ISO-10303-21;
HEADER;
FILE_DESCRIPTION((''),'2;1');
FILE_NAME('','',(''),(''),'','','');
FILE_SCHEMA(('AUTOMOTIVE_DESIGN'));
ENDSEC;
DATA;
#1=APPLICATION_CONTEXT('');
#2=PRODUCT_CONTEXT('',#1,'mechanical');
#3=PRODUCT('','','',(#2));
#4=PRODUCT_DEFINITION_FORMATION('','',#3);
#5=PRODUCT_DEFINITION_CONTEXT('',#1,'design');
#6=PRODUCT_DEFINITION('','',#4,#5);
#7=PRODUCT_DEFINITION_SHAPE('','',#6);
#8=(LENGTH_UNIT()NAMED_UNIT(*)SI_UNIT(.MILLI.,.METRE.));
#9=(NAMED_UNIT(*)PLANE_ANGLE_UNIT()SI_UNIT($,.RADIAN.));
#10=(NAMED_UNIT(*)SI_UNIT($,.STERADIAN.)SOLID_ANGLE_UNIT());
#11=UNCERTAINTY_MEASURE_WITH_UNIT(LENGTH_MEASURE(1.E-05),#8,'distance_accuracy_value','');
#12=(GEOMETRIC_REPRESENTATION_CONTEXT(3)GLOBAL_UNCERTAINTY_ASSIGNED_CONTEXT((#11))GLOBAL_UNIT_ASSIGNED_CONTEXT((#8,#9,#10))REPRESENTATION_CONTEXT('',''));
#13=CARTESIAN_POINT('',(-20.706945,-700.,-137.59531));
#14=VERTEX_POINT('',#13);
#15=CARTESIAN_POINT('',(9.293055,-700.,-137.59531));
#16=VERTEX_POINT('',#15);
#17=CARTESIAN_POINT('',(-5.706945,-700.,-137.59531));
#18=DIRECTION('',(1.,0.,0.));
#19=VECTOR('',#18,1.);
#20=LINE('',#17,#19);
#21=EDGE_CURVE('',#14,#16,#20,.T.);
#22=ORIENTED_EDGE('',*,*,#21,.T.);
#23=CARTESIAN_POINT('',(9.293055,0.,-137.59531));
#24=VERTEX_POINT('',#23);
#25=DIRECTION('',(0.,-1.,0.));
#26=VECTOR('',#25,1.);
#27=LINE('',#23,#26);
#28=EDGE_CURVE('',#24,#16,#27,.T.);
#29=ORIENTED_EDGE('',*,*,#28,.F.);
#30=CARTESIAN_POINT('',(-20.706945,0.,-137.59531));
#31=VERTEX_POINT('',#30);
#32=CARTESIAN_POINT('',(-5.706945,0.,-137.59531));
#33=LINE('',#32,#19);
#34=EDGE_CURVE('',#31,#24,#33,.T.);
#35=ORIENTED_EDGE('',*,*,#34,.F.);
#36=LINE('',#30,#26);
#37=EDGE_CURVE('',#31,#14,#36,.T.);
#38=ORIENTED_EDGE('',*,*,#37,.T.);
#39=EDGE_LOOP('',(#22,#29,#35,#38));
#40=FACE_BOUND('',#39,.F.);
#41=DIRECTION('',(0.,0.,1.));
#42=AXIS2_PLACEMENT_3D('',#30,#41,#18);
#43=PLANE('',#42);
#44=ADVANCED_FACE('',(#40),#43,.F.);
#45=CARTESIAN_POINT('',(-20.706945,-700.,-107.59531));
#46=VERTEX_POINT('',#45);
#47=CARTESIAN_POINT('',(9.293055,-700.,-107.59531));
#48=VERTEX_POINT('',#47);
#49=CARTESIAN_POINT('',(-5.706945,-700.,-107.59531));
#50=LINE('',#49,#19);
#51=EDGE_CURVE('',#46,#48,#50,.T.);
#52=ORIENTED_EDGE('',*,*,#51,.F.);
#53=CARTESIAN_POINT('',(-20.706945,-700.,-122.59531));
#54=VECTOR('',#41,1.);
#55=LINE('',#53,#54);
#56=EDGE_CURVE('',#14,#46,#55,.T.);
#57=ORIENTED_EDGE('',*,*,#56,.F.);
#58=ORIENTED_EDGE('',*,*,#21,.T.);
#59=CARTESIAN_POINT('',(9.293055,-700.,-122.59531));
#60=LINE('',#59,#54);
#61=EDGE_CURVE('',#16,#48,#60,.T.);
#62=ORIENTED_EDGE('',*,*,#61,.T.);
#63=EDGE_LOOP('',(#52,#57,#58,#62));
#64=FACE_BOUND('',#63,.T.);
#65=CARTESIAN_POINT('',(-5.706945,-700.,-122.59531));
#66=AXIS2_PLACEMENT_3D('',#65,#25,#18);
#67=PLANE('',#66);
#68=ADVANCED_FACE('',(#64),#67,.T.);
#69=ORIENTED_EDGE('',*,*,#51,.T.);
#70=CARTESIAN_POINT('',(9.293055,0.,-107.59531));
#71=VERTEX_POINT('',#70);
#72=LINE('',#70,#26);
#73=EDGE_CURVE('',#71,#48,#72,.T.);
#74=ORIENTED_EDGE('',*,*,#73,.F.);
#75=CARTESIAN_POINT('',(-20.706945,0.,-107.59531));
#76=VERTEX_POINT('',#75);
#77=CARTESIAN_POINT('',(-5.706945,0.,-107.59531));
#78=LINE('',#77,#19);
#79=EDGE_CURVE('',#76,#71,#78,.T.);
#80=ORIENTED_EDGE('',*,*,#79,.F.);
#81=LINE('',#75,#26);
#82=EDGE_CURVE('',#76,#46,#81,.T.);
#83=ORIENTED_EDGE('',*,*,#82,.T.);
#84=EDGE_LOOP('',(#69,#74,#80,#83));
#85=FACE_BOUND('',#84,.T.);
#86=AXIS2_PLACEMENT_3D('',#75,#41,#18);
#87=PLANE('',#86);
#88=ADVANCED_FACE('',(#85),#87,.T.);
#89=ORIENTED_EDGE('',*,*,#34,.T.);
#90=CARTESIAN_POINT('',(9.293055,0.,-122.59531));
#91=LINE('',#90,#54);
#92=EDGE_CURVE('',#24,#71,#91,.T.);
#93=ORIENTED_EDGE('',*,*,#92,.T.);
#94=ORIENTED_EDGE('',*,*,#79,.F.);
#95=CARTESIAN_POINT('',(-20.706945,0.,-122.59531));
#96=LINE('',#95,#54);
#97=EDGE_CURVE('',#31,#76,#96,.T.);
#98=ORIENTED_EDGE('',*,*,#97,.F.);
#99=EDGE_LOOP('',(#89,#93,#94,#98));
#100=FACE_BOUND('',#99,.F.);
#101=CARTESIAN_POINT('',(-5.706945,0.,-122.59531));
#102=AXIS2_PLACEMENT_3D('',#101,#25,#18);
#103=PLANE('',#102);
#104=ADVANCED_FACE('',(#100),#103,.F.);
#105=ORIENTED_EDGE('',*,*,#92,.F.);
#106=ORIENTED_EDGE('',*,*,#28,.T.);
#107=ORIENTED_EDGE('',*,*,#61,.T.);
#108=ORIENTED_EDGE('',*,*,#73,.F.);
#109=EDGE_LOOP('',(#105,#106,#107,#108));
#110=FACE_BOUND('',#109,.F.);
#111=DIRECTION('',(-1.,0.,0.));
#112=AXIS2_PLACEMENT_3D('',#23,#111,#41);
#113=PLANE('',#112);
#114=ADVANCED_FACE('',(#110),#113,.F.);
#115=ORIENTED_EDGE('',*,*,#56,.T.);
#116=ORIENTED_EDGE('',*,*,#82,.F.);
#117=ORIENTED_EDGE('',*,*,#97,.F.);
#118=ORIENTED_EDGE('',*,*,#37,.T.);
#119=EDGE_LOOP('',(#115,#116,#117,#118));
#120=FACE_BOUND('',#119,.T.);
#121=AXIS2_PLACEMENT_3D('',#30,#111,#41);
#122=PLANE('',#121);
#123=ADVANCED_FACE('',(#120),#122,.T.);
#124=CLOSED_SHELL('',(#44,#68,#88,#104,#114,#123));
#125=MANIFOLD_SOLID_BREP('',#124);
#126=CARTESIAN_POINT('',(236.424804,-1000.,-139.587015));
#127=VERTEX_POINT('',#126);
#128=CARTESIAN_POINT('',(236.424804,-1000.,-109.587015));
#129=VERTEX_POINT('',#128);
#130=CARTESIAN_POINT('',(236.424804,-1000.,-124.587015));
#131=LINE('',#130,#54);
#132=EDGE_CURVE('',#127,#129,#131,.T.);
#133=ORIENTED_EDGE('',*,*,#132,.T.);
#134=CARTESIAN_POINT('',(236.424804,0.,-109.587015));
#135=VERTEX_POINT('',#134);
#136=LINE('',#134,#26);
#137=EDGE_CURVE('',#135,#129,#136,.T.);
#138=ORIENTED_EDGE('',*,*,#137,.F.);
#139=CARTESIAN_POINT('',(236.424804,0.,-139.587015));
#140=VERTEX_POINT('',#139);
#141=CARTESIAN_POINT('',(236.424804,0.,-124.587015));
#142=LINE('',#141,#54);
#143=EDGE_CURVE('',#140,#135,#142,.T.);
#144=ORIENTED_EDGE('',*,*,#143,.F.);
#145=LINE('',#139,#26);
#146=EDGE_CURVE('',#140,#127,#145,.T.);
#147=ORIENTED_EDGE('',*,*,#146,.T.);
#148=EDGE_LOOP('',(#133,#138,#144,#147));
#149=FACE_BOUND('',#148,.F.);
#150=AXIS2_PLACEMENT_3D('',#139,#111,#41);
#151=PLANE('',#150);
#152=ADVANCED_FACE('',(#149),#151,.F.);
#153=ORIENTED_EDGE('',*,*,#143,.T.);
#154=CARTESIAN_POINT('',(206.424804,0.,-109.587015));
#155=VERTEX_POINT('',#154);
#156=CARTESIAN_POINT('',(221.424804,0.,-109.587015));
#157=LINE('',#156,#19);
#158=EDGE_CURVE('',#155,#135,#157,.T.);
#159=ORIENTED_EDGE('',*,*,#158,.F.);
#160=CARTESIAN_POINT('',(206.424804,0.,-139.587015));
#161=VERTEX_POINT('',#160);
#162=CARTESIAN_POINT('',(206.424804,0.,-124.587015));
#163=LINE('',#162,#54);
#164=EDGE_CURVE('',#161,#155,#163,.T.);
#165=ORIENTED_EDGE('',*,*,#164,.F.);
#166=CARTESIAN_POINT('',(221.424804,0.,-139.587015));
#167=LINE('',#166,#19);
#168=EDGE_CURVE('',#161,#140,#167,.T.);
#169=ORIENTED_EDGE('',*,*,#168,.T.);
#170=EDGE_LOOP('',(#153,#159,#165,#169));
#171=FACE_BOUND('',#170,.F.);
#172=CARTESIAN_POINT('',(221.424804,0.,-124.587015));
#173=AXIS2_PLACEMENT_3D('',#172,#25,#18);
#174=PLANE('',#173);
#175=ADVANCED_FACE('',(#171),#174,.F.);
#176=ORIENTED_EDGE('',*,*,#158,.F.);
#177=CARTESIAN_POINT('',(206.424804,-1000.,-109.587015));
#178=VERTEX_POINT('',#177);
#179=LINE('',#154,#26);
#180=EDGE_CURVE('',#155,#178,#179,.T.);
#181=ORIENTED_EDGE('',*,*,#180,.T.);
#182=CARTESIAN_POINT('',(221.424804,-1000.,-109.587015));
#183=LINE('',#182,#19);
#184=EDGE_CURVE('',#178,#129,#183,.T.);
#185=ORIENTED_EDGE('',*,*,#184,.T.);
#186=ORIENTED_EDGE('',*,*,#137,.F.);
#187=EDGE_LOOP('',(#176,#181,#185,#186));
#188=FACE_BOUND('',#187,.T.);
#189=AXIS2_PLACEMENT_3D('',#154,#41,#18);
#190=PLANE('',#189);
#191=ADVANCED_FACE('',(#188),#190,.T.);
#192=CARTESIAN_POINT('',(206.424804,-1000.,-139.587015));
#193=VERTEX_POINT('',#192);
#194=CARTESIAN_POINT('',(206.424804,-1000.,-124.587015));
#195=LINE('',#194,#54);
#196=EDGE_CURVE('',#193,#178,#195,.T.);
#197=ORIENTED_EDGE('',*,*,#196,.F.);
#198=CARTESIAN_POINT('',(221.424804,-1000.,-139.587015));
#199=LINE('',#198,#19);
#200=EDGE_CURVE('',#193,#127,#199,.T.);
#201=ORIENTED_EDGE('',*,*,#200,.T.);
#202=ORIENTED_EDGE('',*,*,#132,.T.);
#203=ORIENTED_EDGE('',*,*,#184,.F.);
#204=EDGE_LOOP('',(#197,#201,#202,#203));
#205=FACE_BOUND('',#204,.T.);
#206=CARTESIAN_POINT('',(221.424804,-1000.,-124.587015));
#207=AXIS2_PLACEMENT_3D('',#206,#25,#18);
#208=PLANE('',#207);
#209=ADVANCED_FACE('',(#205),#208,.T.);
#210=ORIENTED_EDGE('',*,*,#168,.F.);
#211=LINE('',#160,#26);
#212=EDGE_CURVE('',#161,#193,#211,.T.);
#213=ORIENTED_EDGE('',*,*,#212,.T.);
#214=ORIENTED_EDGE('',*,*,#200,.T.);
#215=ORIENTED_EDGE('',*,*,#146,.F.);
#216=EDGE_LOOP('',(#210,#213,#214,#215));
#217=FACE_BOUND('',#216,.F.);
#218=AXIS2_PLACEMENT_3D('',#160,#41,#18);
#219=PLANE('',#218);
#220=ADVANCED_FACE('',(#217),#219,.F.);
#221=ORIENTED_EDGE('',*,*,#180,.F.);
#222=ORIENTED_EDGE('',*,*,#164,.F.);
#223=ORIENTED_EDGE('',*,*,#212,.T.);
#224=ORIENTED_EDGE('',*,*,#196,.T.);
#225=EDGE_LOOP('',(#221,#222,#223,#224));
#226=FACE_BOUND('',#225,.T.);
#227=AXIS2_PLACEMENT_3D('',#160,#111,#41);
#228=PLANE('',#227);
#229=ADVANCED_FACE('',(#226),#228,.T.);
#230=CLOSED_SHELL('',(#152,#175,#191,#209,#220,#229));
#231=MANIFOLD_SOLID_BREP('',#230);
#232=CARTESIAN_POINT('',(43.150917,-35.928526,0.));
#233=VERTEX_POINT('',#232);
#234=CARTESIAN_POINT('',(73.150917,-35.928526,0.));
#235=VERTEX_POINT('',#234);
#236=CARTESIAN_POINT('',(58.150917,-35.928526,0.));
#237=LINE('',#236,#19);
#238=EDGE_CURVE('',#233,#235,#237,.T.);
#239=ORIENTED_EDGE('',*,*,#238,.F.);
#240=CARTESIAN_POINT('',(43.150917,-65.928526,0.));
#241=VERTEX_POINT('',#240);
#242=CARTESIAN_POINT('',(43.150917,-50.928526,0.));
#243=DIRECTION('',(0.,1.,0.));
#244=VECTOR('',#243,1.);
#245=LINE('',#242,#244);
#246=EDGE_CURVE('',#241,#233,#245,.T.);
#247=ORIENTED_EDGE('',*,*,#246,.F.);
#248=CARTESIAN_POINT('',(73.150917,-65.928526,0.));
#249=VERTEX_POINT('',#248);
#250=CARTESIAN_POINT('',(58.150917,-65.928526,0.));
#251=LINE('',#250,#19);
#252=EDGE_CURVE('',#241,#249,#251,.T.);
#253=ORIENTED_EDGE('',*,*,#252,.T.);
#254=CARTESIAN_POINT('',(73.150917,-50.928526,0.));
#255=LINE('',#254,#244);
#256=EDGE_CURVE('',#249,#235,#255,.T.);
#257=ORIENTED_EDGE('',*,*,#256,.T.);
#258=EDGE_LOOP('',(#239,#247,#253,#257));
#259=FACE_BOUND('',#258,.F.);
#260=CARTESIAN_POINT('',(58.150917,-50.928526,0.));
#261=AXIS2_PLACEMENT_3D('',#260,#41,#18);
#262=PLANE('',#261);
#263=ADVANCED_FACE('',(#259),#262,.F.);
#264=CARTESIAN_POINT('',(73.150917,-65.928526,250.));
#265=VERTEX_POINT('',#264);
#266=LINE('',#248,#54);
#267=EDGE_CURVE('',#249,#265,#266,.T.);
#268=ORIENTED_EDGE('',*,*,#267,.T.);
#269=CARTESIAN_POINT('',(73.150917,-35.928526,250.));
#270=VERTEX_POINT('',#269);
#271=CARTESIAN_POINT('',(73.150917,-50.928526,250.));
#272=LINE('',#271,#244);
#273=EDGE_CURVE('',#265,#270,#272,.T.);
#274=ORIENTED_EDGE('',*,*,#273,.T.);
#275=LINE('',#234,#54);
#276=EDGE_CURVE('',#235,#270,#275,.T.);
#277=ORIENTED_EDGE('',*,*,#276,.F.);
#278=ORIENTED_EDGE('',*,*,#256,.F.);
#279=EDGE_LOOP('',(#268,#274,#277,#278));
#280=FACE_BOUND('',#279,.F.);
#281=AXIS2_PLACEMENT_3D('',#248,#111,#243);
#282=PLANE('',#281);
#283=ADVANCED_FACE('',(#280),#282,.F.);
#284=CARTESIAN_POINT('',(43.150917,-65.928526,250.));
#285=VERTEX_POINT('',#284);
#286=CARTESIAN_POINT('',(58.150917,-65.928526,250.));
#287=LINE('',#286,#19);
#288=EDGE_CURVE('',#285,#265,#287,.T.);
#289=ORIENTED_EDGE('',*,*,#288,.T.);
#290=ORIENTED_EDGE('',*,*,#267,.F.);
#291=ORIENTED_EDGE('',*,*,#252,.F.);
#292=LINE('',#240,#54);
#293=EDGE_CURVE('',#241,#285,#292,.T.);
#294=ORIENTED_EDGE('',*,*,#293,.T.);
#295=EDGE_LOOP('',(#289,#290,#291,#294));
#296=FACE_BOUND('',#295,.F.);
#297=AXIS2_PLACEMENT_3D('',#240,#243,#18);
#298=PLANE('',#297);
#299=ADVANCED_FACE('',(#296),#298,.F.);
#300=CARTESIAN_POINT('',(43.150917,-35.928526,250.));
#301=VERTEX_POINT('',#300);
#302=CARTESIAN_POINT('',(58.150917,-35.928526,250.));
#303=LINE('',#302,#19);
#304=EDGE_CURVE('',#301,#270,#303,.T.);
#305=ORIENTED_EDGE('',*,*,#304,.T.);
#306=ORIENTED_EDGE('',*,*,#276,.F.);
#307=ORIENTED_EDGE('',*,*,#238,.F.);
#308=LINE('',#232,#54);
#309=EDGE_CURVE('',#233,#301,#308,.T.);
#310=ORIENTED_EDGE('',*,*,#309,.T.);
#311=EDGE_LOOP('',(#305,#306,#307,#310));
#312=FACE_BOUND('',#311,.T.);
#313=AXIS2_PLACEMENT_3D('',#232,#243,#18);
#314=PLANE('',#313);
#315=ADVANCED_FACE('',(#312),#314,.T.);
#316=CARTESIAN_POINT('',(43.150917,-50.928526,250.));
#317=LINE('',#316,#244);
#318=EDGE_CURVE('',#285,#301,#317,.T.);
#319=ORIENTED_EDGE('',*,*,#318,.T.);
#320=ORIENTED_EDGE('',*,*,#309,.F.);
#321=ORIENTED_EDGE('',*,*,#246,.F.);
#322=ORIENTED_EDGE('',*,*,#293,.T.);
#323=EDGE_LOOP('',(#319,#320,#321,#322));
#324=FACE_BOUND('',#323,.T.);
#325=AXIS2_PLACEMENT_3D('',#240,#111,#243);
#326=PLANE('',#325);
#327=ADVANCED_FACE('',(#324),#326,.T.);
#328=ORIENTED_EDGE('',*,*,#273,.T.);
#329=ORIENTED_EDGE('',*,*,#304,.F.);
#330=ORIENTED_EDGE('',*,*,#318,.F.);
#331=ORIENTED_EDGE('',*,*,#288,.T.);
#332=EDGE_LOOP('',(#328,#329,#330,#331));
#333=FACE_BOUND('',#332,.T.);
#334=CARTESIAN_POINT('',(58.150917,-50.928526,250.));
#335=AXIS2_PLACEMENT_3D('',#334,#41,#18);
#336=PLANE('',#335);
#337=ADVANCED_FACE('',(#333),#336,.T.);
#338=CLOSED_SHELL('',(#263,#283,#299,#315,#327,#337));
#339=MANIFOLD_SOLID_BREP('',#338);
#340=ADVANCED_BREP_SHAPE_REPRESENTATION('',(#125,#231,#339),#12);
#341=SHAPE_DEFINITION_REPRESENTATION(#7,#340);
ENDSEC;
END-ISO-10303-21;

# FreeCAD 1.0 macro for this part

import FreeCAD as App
import Part
import Sketcher
from FreeCAD import Vector
Q = App.Units.Quantity


def add_polygon(sketch, points):
    """Adds a closed chain of lines whose ends are joined by coincident constraints."""
    first, n = sketch.GeometryCount, len(points)
    for a, b in zip(points, points[1:] + points[:1]):
        sketch.addGeometry(Part.LineSegment(App.Vector(*a, 0), App.Vector(*b, 0)), False)
    for i in range(n):
        sketch.addConstraint(Sketcher.Constraint("Coincident", first + i, 2, first + (i + 1) % n, 1))

doc = App.newDocument("Part")
body = doc.addObject("PartDesign::Body", "Body")

# Sketch on XY plane
sketch1 = body.newObject("Sketcher::SketchObject", "Sketch")
sketch1.AttachmentSupport = (doc.getObject("XY_Plane"), [""])
sketch1.MapMode = "FlatFace"
add_polygon(sketch1, [(43, -36), (43, -66), (73, -66), (73, -36)])  # lines 0-3
sketch1.addConstraint([
    Sketcher.Constraint("Vertical", 0),
    Sketcher.Constraint("Horizontal", 1),
    Sketcher.Constraint("Vertical", 2),
    Sketcher.Constraint("Horizontal", 3),
    Sketcher.Constraint("Equal", 3, 0),
    Sketcher.Constraint("DistanceX", 1, 1, 1, 2, Q("30 mm")),
    Sketcher.Constraint("DistanceX", -1, 1, 0, 2, Q("43.150917 mm")),
    Sketcher.Constraint("DistanceY", 0, 2, -1, 1, Q("65.928526 mm")),
])
pad1 = body.newObject("PartDesign::Pad", "Pad")
pad1.Profile = sketch1
pad1.Length = 250
body2 = doc.addObject("PartDesign::Body", "Body001")

# Sketch on XZ plane
sketch2 = body2.newObject("Sketcher::SketchObject", "Sketch001")
sketch2.AttachmentSupport = (doc.getObject("XZ_Plane001"), [""])
sketch2.MapMode = "FlatFace"
add_polygon(sketch2, [(206, -110), (206, -140), (236, -140), (236, -110)])  # lines 0-3
sketch2.addConstraint([
    Sketcher.Constraint("Vertical", 0),
    Sketcher.Constraint("Horizontal", 1),
    Sketcher.Constraint("Vertical", 2),
    Sketcher.Constraint("Horizontal", 3),
    Sketcher.Constraint("Equal", 3, 0),
    Sketcher.Constraint("DistanceX", 1, 1, 1, 2, Q("30 mm")),
    Sketcher.Constraint("DistanceX", -1, 1, 0, 2, Q("206.424804 mm")),
    Sketcher.Constraint("DistanceY", 0, 2, -1, 1, Q("139.587015 mm")),
])
pad2 = body2.newObject("PartDesign::Pad", "Pad001")
pad2.Profile = sketch2
pad2.Length = 1000
body3 = doc.addObject("PartDesign::Body", "Body002")

# Sketch on XZ plane
sketch3 = body3.newObject("Sketcher::SketchObject", "Sketch002")
sketch3.AttachmentSupport = (doc.getObject("XZ_Plane002"), [""])
sketch3.MapMode = "FlatFace"
add_polygon(sketch3, [(-21, -108), (-21, -138), (9, -138), (9, -108)])  # lines 0-3
sketch3.addConstraint([
    Sketcher.Constraint("Vertical", 0),
    Sketcher.Constraint("Horizontal", 1),
    Sketcher.Constraint("Vertical", 2),
    Sketcher.Constraint("Horizontal", 3),
    Sketcher.Constraint("Equal", 3, 0),
    Sketcher.Constraint("DistanceX", 1, 1, 1, 2, Q("30 mm")),
    Sketcher.Constraint("DistanceY", 0, 2, -1, 1, Q("137.59531 mm")),
    Sketcher.Constraint("DistanceX", 0, 2, -1, 1, Q("20.706945 mm")),
])
pad3 = body3.newObject("PartDesign::Pad", "Pad002")
pad3.Profile = sketch3
pad3.Length = 700

doc.recompute()
